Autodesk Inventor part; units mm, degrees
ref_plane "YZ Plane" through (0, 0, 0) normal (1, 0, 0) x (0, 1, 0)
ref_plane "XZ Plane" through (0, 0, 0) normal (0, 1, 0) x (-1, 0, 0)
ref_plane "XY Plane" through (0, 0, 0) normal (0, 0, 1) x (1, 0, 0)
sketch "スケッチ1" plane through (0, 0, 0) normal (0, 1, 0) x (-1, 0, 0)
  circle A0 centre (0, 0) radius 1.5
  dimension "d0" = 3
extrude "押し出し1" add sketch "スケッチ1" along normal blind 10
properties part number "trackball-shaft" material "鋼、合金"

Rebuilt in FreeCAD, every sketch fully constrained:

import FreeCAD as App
import Part
import Sketcher
from FreeCAD import Vector

doc = App.newDocument("Part")
body = doc.addObject("PartDesign::Body", "Body")

# Sketch on XZ plane
sketch1 = body.newObject("Sketcher::SketchObject", "Sketch")
sketch1.AttachmentSupport = (doc.getObject("XZ_Plane"), [""])
sketch1.MapMode = "FlatFace"
sketch1.addGeometry(Part.Circle(Vector(0, 0, 0), Vector(0, 0, 1), 1.5), False)
sketch1.addConstraint(Sketcher.Constraint("Coincident", 0, 3, -1, 1))
sketch1.addConstraint(Sketcher.Constraint("Diameter", 0, 3.0))
pad1 = body.newObject("PartDesign::Pad", "Pad")
pad1.Profile = sketch1
pad1.Length = 10
pad1.Reversed = True

doc.recompute()
